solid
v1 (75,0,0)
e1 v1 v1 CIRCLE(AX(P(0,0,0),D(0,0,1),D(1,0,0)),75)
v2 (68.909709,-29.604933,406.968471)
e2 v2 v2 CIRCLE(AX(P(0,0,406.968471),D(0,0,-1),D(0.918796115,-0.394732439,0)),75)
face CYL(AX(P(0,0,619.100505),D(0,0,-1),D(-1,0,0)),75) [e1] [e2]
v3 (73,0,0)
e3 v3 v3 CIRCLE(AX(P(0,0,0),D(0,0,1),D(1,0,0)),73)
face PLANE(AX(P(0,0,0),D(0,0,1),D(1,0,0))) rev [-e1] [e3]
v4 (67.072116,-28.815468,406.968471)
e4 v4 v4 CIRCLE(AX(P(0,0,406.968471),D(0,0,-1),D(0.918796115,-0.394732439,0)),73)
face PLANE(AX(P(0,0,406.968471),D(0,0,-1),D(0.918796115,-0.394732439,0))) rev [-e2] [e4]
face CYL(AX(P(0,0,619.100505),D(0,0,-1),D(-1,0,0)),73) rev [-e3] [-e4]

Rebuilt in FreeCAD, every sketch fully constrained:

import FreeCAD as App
import Part
import Sketcher
Q = App.Units.Quantity

doc = App.newDocument("Part")
body = doc.addObject("PartDesign::Body", "Body")

# Sketch on XY plane
sketch1 = body.newObject("Sketcher::SketchObject", "Sketch")
sketch1.AttachmentSupport = (doc.getObject("XY_Plane"), [""])
sketch1.MapMode = "FlatFace"
sketch1.addGeometry(Part.Circle(App.Vector(0, 0, 0), App.Vector(0, 0, 1), 75), False)
sketch1.addGeometry(Part.Circle(App.Vector(0, 0, 0), App.Vector(0, 0, 1), 73), False)
sketch1.addConstraint(Sketcher.Constraint("Coincident", 0, 3, -1, 1))
sketch1.addConstraint(Sketcher.Constraint("Coincident", 1, 3, -1, 1))
sketch1.addConstraint(Sketcher.Constraint("Diameter", 0, Q("150 mm")))
sketch1.addConstraint(Sketcher.Constraint("Diameter", 1, Q("146 mm")))
pad1 = body.newObject("PartDesign::Pad", "Pad")
pad1.Profile = sketch1
pad1.Length = 406.968471

doc.recompute()
